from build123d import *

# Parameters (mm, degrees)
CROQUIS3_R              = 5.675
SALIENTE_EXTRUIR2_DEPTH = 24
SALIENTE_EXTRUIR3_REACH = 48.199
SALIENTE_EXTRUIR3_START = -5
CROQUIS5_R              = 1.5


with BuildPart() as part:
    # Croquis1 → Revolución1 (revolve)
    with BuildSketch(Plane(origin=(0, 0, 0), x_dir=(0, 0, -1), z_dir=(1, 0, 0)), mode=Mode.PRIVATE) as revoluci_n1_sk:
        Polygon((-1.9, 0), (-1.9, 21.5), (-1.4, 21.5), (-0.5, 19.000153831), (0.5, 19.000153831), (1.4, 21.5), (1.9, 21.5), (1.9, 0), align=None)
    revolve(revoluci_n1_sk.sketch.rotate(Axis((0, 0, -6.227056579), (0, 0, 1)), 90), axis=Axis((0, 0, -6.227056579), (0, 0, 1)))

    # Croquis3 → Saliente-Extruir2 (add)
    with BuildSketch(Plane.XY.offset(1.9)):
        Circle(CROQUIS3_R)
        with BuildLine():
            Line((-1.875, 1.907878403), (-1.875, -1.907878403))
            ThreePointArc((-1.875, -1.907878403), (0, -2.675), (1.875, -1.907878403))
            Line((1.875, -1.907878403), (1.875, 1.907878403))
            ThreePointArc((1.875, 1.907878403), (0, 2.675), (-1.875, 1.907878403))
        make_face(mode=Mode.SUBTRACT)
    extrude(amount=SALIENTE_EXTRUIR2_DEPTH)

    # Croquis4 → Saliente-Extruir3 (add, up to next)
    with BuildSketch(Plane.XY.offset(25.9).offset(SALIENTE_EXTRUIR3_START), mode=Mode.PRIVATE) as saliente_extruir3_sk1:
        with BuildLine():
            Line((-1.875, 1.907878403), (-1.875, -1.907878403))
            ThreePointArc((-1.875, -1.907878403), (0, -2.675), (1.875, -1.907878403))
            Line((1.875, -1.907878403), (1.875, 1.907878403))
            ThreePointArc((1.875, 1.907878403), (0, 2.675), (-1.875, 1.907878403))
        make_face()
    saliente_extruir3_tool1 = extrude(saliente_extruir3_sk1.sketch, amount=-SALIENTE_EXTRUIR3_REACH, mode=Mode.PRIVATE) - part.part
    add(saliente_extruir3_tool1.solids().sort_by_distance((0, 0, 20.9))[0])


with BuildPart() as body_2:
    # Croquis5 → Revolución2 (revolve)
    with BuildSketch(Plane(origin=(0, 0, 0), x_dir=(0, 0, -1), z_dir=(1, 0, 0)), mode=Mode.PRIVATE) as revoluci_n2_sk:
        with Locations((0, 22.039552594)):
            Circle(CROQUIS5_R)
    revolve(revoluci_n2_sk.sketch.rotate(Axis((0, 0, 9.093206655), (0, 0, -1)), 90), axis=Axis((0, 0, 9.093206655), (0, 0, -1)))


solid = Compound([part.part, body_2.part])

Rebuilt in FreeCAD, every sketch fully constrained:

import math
import FreeCAD as App
import Part
import Sketcher
from FreeCAD import Vector
Q = App.Units.Quantity

doc = App.newDocument("Part")
body = doc.addObject("PartDesign::Body", "Body")

# Sketch on YZ plane
sketch1 = body.newObject("Sketcher::SketchObject", "Sketch")
sketch1.AttachmentSupport = (doc.getObject("YZ_Plane"), [""])
sketch1.MapMode = "FlatFace"
sketch1.addGeometry([
    Part.LineSegment(Vector(21.5, 1.9, 0), Vector(0, 1.9, 0)),  # 0
    Part.LineSegment(Vector(0, 1.9, 0), Vector(0, -1.9, 0)),  # 1
    Part.LineSegment(Vector(0, -1.9, 0), Vector(21.5, -1.9, 0)),  # 2
    Part.LineSegment(Vector(21.5, -1.9, 0), Vector(21.5, -1.4, 0)),  # 3
    Part.LineSegment(Vector(21.5, -1.4, 0), Vector(19, -0.5, 0)),  # 4
    Part.LineSegment(Vector(19, -0.5, 0), Vector(19, 0.5, 0)),  # 5
    Part.LineSegment(Vector(19, 0.5, 0), Vector(21.5, 1.4, 0)),  # 6
    Part.LineSegment(Vector(21.5, 1.4, 0), Vector(21.5, 1.9, 0)),  # 7
], False)
sketch1.addConstraint([
    Sketcher.Constraint("Coincident", 0, 2, 1, 1),
    Sketcher.Constraint("Coincident", 1, 2, 2, 1),
    Sketcher.Constraint("Coincident", 2, 2, 3, 1),
    Sketcher.Constraint("Coincident", 3, 2, 4, 1),
    Sketcher.Constraint("Coincident", 4, 2, 5, 1),
    Sketcher.Constraint("Coincident", 5, 2, 6, 1),
    Sketcher.Constraint("Coincident", 6, 2, 7, 1),
    Sketcher.Constraint("Coincident", 7, 2, 0, 1),
    Sketcher.Constraint("Horizontal", 0),
    Sketcher.Constraint("Vertical", 1),
    Sketcher.Constraint("Horizontal", 2),
    Sketcher.Constraint("Vertical", 3),
    Sketcher.Constraint("Vertical", 5),
    Sketcher.Constraint("Vertical", 7),
    Sketcher.Constraint("Symmetric", 0, 2, 1, 2, -1, 1),
    Sketcher.Constraint("Symmetric", 3, 2, 6, 2, -1),
    Sketcher.Constraint("Equal", 4, 6),
    Sketcher.Constraint("DistanceY", 5, 1, 5, 2, Q("1 mm")),
    Sketcher.Constraint("DistanceX", 0, 2, 0, 1, Q("21.5 mm")),
    Sketcher.Constraint("DistanceY", 1, 2, 1, 1, Q("3.8 mm")),
    Sketcher.Constraint("DistanceY", 3, 1, 3, 2, Q("0.5 mm")),
    Sketcher.Constraint("Angle", 4, Q("160.2 deg")),
])
revolution = body.newObject("PartDesign::Revolution", "Revolution")
revolution.Profile = sketch1
revolution.ReferenceAxis = (sketch1, ["V_Axis"])
revolution.Angle = 360

# Sketch on XY plane
sketch2 = body.newObject("Sketcher::SketchObject", "Sketch001")
sketch2.AttachmentSupport = (doc.getObject("XY_Plane"), [""])
sketch2.MapMode = "FlatFace"
sketch2.AttachmentOffset = App.Placement(Vector(0, 0, 1.9), App.Rotation())
sketch2.addGeometry([
    Part.Circle(Vector(0, 0, 0), Vector(0, 0, 1), 5.7),  # 0
    Part.LineSegment(Vector(-1.9, -1.9, 0), Vector(-1.9, 1.9, 0)),  # 1
    Part.ArcOfCircle(Part.Circle(Vector(0, 0, 0), Vector(0, 0, 1), 2.7), math.radians(45), math.radians(135)),  # 2
    Part.LineSegment(Vector(1.9, 1.9, 0), Vector(1.9, -1.9, 0)),  # 3
    Part.ArcOfCircle(Part.Circle(Vector(0, 0, 0), Vector(0, 0, 1), 2.7), math.radians(-135), math.radians(-45)),  # 4
], False)
sketch2.addConstraint([
    Sketcher.Constraint("Coincident", 1, 2, 2, 2),
    Sketcher.Constraint("Coincident", 2, 1, 3, 1),
    Sketcher.Constraint("Coincident", 3, 2, 4, 2),
    Sketcher.Constraint("Coincident", 4, 1, 1, 1),
    Sketcher.Constraint("Vertical", 1),
    Sketcher.Constraint("Vertical", 3),
    Sketcher.Constraint("Coincident", 0, 3, -1, 1),
    Sketcher.Constraint("Coincident", 2, 3, -1, 1),
    Sketcher.Constraint("Coincident", 4, 3, -1, 1),
    Sketcher.Constraint("Equal", 2, 4),
    Sketcher.Constraint("Horizontal", 1, 2, 2, 1),
    Sketcher.Constraint("Diameter", 0, Q("11.35 mm")),
    Sketcher.Constraint("Radius", 2, Q("2.675 mm")),
    Sketcher.Constraint("DistanceX", 1, 2, 2, 1, Q("3.75 mm")),
])
pad1 = body.newObject("PartDesign::Pad", "Pad")
pad1.Profile = sketch2
pad1.Length = 24

# Sketch on XY plane
sketch3 = body.newObject("Sketcher::SketchObject", "Sketch002")
sketch3.AttachmentSupport = (doc.getObject("XY_Plane"), [""])
sketch3.MapMode = "FlatFace"
sketch3.AttachmentOffset = App.Placement(Vector(0, 0, 20.9), App.Rotation())
sketch3.addGeometry([
    Part.LineSegment(Vector(-1.9, 1.9, 0), Vector(-1.9, -1.9, 0)),
    Part.ArcOfCircle(Part.Circle(Vector(0, 0, 0), Vector(0, 0, 1), 2.7), math.radians(-135), math.radians(-45)),
    Part.LineSegment(Vector(1.9, -1.9, 0), Vector(1.9, 1.9, 0)),
    Part.ArcOfCircle(Part.Circle(Vector(0, 0, 0), Vector(0, 0, 1), 2.7), math.radians(45), math.radians(135)),
], False)
sketch3.addConstraint([
    Sketcher.Constraint("Coincident", 0, 2, 1, 1),
    Sketcher.Constraint("Coincident", 1, 2, 2, 1),
    Sketcher.Constraint("Coincident", 2, 2, 3, 1),
    Sketcher.Constraint("Coincident", 3, 2, 0, 1),
    Sketcher.Constraint("Vertical", 0),
    Sketcher.Constraint("Vertical", 2),
    Sketcher.Constraint("Coincident", 1, 3, -1, 1),
    Sketcher.Constraint("Coincident", 3, 3, -1, 1),
    Sketcher.Constraint("Equal", 1, 3),
    Sketcher.Constraint("Horizontal", 0, 2, 1, 2),
    Sketcher.Constraint("Radius", 1, Q("2.675 mm")),
    Sketcher.Constraint("DistanceX", 0, 2, 1, 2, Q("3.75 mm")),
])
pad2 = body.newObject("PartDesign::Pad", "Pad001")
pad2.Profile = sketch3
pad2.Type = "UpToFirst"
pad2.Reversed = True
body2 = doc.addObject("PartDesign::Body", "Body001")

# Sketch on YZ plane
sketch4 = body2.newObject("Sketcher::SketchObject", "Sketch003")
sketch4.AttachmentSupport = (doc.getObject("YZ_Plane001"), [""])
sketch4.MapMode = "FlatFace"
sketch4.addGeometry(Part.Circle(Vector(22, 0, 0), Vector(0, 0, 1), 1.5), False)
sketch4.addConstraint([
    Sketcher.Constraint("PointOnObject", 0, 3, -1),
    Sketcher.Constraint("Diameter", 0, Q("3 mm")),
    Sketcher.Constraint("DistanceX", -1, 1, 0, 3, Q("22.039553 mm")),
])
revolution2 = body2.newObject("PartDesign::Revolution", "Revolution001")
revolution2.Profile = sketch4
revolution2.ReferenceAxis = (sketch4, ["V_Axis"])
revolution2.Angle = 360

doc.recompute()
